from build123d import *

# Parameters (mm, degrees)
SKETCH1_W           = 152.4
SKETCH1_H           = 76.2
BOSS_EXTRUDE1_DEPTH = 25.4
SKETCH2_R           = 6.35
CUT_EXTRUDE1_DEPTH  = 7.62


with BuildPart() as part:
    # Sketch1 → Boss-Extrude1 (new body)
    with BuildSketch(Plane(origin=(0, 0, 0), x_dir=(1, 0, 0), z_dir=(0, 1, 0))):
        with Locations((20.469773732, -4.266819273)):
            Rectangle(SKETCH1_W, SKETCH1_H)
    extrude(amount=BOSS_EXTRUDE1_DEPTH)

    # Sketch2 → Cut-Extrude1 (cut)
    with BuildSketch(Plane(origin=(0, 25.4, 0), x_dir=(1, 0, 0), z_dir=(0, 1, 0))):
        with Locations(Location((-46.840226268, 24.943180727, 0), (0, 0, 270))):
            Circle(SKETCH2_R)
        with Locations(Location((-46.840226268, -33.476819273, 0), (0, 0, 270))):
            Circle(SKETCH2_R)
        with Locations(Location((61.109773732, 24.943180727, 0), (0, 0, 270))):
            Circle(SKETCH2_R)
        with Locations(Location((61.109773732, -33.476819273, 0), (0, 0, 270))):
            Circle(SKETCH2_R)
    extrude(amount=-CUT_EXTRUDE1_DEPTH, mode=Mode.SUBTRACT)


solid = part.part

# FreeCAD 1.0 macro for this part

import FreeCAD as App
import Part
import Sketcher

V = App.Vector
Q = App.Units.Quantity

doc = App.newDocument("Part")
params = doc.addObject("Spreadsheet::Sheet", "Params")
for row, (alias, value) in enumerate([
    ("sketch1_width", "6 in"),
    ("sketch1_height", "3 in"),
    ("pad1_length", "1 in"),
    ("sketch2_diameter", "0.5 in"),
    ("pocket1_length", "0.3 in"),
], start=1):
    params.set(f"A{row}", alias)
    params.set(f"B{row}", "=" + value)
    params.setAlias(f"B{row}", alias)

body = doc.addObject("PartDesign::Body", "Body")

sketch1 = body.newObject("Sketcher::SketchObject", "Sketch")
sketch1.AttachmentSupport = (doc.getObject("XZ_Plane"), [""])
sketch1.MapMode = "FlatFace"
sketch1.addGeometry(Part.LineSegment(V(-55.730226, -33.833181, 0), V(-55.730226, 42.366819, 0)), False)
sketch1.addGeometry(Part.LineSegment(V(-55.730226, 42.366819, 0), V(96.669774, 42.366819, 0)), False)
sketch1.addGeometry(Part.LineSegment(V(96.669774, 42.366819, 0), V(96.669774, -33.833181, 0)), False)
sketch1.addGeometry(Part.LineSegment(V(96.669774, -33.833181, 0), V(-55.730226, -33.833181, 0)), False)
sketch1.addConstraint(Sketcher.Constraint("Coincident", 0, 2, 1, 1))
sketch1.addConstraint(Sketcher.Constraint("Coincident", 1, 2, 2, 1))
sketch1.addConstraint(Sketcher.Constraint("Coincident", 2, 2, 3, 1))
sketch1.addConstraint(Sketcher.Constraint("Coincident", 3, 2, 0, 1))
sketch1.addConstraint(Sketcher.Constraint("Vertical", 0))
sketch1.addConstraint(Sketcher.Constraint("Horizontal", 1))
sketch1.addConstraint(Sketcher.Constraint("Vertical", 2))
sketch1.addConstraint(Sketcher.Constraint("Horizontal", 3))
sketch1.addConstraint(Sketcher.Constraint("DistanceX", 1, 1, 1, 2, Q("6 in")))
sketch1.addConstraint(Sketcher.Constraint("DistanceY", 0, 1, 0, 2, Q("3 in")))
sketch1.addConstraint(Sketcher.Constraint("DistanceY", -1, 1, 0, 2, Q("42.366819 mm")))
sketch1.addConstraint(Sketcher.Constraint("DistanceX", 0, 2, -1, 1, Q("55.730226 mm")))
sketch1.setExpression("Constraints[8]", "Params.sketch1_width")
sketch1.setExpression("Constraints[9]", "Params.sketch1_height")
pad1 = body.newObject("PartDesign::Pad", "Pad")
pad1.Profile = sketch1
pad1.setExpression("Length", "Params.pad1_length")
pad1.Reversed = True

sketch2 = body.newObject("Sketcher::SketchObject", "Sketch001")
sketch2.AttachmentSupport = (doc.getObject("XZ_Plane"), [""])
sketch2.MapMode = "FlatFace"
sketch2.AttachmentOffset = App.Placement(V(0, 0, -1 * 25.4), App.Rotation())
sketch2.addGeometry(Part.Circle(V(-46.840226, -24.943181, 0), V(0, 0, 1), 6.35), False)
sketch2.addGeometry(Part.Circle(V(-46.840226, 33.476819, 0), V(0, 0, 1), 6.35), False)
sketch2.addGeometry(Part.Circle(V(61.109774, -24.943181, 0), V(0, 0, 1), 6.35), False)
sketch2.addGeometry(Part.Circle(V(61.109774, 33.476819, 0), V(0, 0, 1), 6.35), False)
sketch2.addConstraint(Sketcher.Constraint("Equal", 0, 1))
sketch2.addConstraint(Sketcher.Constraint("Equal", 1, 2))
sketch2.addConstraint(Sketcher.Constraint("Equal", 2, 3))
sketch2.addConstraint(Sketcher.Constraint("Horizontal", 0, 3, 2, 3))
sketch2.addConstraint(Sketcher.Constraint("Horizontal", 1, 3, 3, 3))
sketch2.addConstraint(Sketcher.Constraint("Vertical", 0, 3, 1, 3))
sketch2.addConstraint(Sketcher.Constraint("Vertical", 2, 3, 3, 3))
sketch2.addConstraint(Sketcher.Constraint("Diameter", 0, Q("0.5 in")))
sketch2.addConstraint(Sketcher.Constraint("DistanceY", 0, 3, 1, 3, Q("2.3 in")))
sketch2.addConstraint(Sketcher.Constraint("DistanceX", 0, 3, 2, 3, Q("4.25 in")))
sketch2.addConstraint(Sketcher.Constraint("DistanceY", 0, 3, -1, 1, Q("24.943181 mm")))
sketch2.addConstraint(Sketcher.Constraint("DistanceX", 0, 3, -1, 1, Q("46.840226 mm")))
sketch2.setExpression("Constraints[7]", "Params.sketch2_diameter")
pocket1 = body.newObject("PartDesign::Pocket", "Pocket")
pocket1.Profile = sketch2
pocket1.setExpression("Length", "Params.pocket1_length")
pocket1.Reversed = True

doc.recompute()
